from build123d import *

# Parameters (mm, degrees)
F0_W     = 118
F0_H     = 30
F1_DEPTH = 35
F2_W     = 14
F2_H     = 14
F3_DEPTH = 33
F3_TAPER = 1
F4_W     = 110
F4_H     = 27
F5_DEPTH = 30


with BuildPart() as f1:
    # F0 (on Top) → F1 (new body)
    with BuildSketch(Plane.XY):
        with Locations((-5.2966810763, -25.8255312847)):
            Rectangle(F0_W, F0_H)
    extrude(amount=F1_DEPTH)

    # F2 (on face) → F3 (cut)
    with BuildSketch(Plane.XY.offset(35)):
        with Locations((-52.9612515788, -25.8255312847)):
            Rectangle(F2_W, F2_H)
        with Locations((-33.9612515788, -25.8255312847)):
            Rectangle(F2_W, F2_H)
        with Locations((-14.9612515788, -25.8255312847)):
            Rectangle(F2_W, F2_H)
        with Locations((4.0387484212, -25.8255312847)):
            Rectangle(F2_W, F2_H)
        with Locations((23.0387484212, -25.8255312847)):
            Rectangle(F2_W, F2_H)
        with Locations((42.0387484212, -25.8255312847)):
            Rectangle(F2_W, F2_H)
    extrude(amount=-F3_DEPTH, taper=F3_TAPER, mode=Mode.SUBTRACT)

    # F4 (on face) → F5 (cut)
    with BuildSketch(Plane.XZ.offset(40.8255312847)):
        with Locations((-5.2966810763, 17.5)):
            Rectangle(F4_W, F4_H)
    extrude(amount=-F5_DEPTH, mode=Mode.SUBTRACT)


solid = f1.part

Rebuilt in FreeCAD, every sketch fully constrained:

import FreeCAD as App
import Part
import Sketcher
from FreeCAD import Vector
Q = App.Units.Quantity

doc = App.newDocument("Part")
body = doc.addObject("PartDesign::Body", "Body")

sketch1 = body.newObject("Sketcher::SketchObject", "Sketch")
sketch1.AttachmentSupport = (doc.getObject("XY_Plane"), [""])
sketch1.MapMode = "FlatFace"
sketch1.addGeometry([
    Part.LineSegment(Vector(-64.296681, -10.825531, 0), Vector(-64.296681, -40.825531, 0)),
    Part.LineSegment(Vector(-64.296681, -40.825531, 0), Vector(53.703319, -40.825531, 0)),
    Part.LineSegment(Vector(53.703319, -40.825531, 0), Vector(53.703319, -10.825531, 0)),
    Part.LineSegment(Vector(53.703319, -10.825531, 0), Vector(-64.296681, -10.825531, 0)),
], False)
sketch1.addConstraint([
    Sketcher.Constraint("Coincident", 0, 2, 1, 1),
    Sketcher.Constraint("Coincident", 1, 2, 2, 1),
    Sketcher.Constraint("Coincident", 2, 2, 3, 1),
    Sketcher.Constraint("Coincident", 3, 2, 0, 1),
    Sketcher.Constraint("Vertical", 0),
    Sketcher.Constraint("Horizontal", 1),
    Sketcher.Constraint("Vertical", 2),
    Sketcher.Constraint("Horizontal", 3),
    Sketcher.Constraint("DistanceX", 1, 1, 1, 2, Q("118 mm")),
    Sketcher.Constraint("DistanceY", 0, 2, 0, 1, Q("30 mm")),
    Sketcher.Constraint("DistanceX", 0, 2, -1, 1, Q("64.296681 mm")),
    Sketcher.Constraint("DistanceY", 0, 2, -1, 1, Q("40.825531 mm")),
])
pad1 = body.newObject("PartDesign::Pad", "Pad")
pad1.Profile = sketch1
pad1.Length = 35

sketch2 = body.newObject("Sketcher::SketchObject", "Sketch001")
sketch2.AttachmentSupport = (doc.getObject("XY_Plane"), [""])
sketch2.MapMode = "FlatFace"
sketch2.AttachmentOffset = App.Placement(Vector(0, 0, 35), App.Rotation())
sketch2.addGeometry([
    Part.LineSegment(Vector(-59.961252, -18.825531, 0), Vector(-59.961252, -32.825531, 0)),
    Part.LineSegment(Vector(-59.961252, -32.825531, 0), Vector(-45.961252, -32.825531, 0)),
    Part.LineSegment(Vector(-45.961252, -32.825531, 0), Vector(-45.961252, -18.825531, 0)),
    Part.LineSegment(Vector(-45.961252, -18.825531, 0), Vector(-59.961252, -18.825531, 0)),
    Part.LineSegment(Vector(-40.961252, -18.825531, 0), Vector(-40.961252, -32.825531, 0)),
    Part.LineSegment(Vector(-40.961252, -32.825531, 0), Vector(-26.961252, -32.825531, 0)),
    Part.LineSegment(Vector(-26.961252, -32.825531, 0), Vector(-26.961252, -18.825531, 0)),
    Part.LineSegment(Vector(-26.961252, -18.825531, 0), Vector(-40.961252, -18.825531, 0)),
    Part.LineSegment(Vector(-21.961252, -18.825531, 0), Vector(-21.961252, -32.825531, 0)),
    Part.LineSegment(Vector(-21.961252, -32.825531, 0), Vector(-7.961252, -32.825531, 0)),
    Part.LineSegment(Vector(-7.961252, -32.825531, 0), Vector(-7.961252, -18.825531, 0)),
    Part.LineSegment(Vector(-7.961252, -18.825531, 0), Vector(-21.961252, -18.825531, 0)),
    Part.LineSegment(Vector(-2.961252, -18.825531, 0), Vector(-2.961252, -32.825531, 0)),
    Part.LineSegment(Vector(-2.961252, -32.825531, 0), Vector(11.038748, -32.825531, 0)),
    Part.LineSegment(Vector(11.038748, -32.825531, 0), Vector(11.038748, -18.825531, 0)),
    Part.LineSegment(Vector(11.038748, -18.825531, 0), Vector(-2.961252, -18.825531, 0)),
    Part.LineSegment(Vector(16.038748, -18.825531, 0), Vector(16.038748, -32.825531, 0)),
    Part.LineSegment(Vector(16.038748, -32.825531, 0), Vector(30.038748, -32.825531, 0)),
    Part.LineSegment(Vector(30.038748, -32.825531, 0), Vector(30.038748, -18.825531, 0)),
    Part.LineSegment(Vector(30.038748, -18.825531, 0), Vector(16.038748, -18.825531, 0)),
    Part.LineSegment(Vector(35.038748, -18.825531, 0), Vector(35.038748, -32.825531, 0)),
    Part.LineSegment(Vector(35.038748, -32.825531, 0), Vector(49.038748, -32.825531, 0)),
    Part.LineSegment(Vector(49.038748, -32.825531, 0), Vector(49.038748, -18.825531, 0)),
    Part.LineSegment(Vector(49.038748, -18.825531, 0), Vector(35.038748, -18.825531, 0)),
], False)
sketch2.addConstraint([
    Sketcher.Constraint("Coincident", 0, 2, 1, 1),
    Sketcher.Constraint("Coincident", 1, 2, 2, 1),
    Sketcher.Constraint("Coincident", 2, 2, 3, 1),
    Sketcher.Constraint("Coincident", 3, 2, 0, 1),
    Sketcher.Constraint("Coincident", 4, 2, 5, 1),
    Sketcher.Constraint("Coincident", 5, 2, 6, 1),
    Sketcher.Constraint("Coincident", 6, 2, 7, 1),
    Sketcher.Constraint("Coincident", 7, 2, 4, 1),
    Sketcher.Constraint("Coincident", 8, 2, 9, 1),
    Sketcher.Constraint("Coincident", 9, 2, 10, 1),
    Sketcher.Constraint("Coincident", 10, 2, 11, 1),
    Sketcher.Constraint("Coincident", 11, 2, 8, 1),
    Sketcher.Constraint("Coincident", 12, 2, 13, 1),
    Sketcher.Constraint("Coincident", 13, 2, 14, 1),
    Sketcher.Constraint("Coincident", 14, 2, 15, 1),
    Sketcher.Constraint("Coincident", 15, 2, 12, 1),
    Sketcher.Constraint("Coincident", 16, 2, 17, 1),
    Sketcher.Constraint("Coincident", 17, 2, 18, 1),
    Sketcher.Constraint("Coincident", 18, 2, 19, 1),
    Sketcher.Constraint("Coincident", 19, 2, 16, 1),
    Sketcher.Constraint("Coincident", 20, 2, 21, 1),
    Sketcher.Constraint("Coincident", 21, 2, 22, 1),
    Sketcher.Constraint("Coincident", 22, 2, 23, 1),
    Sketcher.Constraint("Coincident", 23, 2, 20, 1),
    Sketcher.Constraint("Vertical", 0),
    Sketcher.Constraint("Horizontal", 1),
    Sketcher.Constraint("Vertical", 2),
    Sketcher.Constraint("Horizontal", 3),
    Sketcher.Constraint("Vertical", 4),
    Sketcher.Constraint("Horizontal", 5),
    Sketcher.Constraint("Vertical", 6),
    Sketcher.Constraint("Horizontal", 7),
    Sketcher.Constraint("Vertical", 8),
    Sketcher.Constraint("Horizontal", 9),
    Sketcher.Constraint("Vertical", 10),
    Sketcher.Constraint("Horizontal", 11),
    Sketcher.Constraint("Vertical", 12),
    Sketcher.Constraint("Horizontal", 13),
    Sketcher.Constraint("Vertical", 14),
    Sketcher.Constraint("Horizontal", 15),
    Sketcher.Constraint("Vertical", 16),
    Sketcher.Constraint("Horizontal", 17),
    Sketcher.Constraint("Vertical", 18),
    Sketcher.Constraint("Horizontal", 19),
    Sketcher.Constraint("Vertical", 20),
    Sketcher.Constraint("Horizontal", 21),
    Sketcher.Constraint("Vertical", 22),
    Sketcher.Constraint("Horizontal", 23),
    Sketcher.Constraint("Horizontal", 1, 2, 4, 2),
    Sketcher.Constraint("Horizontal", 3, 2, 6, 2),
    Sketcher.Constraint("Horizontal", 5, 2, 8, 2),
    Sketcher.Constraint("Horizontal", 7, 2, 10, 2),
    Sketcher.Constraint("Horizontal", 9, 2, 12, 2),
    Sketcher.Constraint("Horizontal", 11, 2, 14, 2),
    Sketcher.Constraint("Horizontal", 13, 2, 16, 2),
    Sketcher.Constraint("Horizontal", 15, 2, 18, 2),
    Sketcher.Constraint("Horizontal", 17, 2, 20, 2),
    Sketcher.Constraint("Horizontal", 19, 2, 22, 2),
    Sketcher.Constraint("Equal", 3, 5),
    Sketcher.Constraint("Equal", 7, 9),
    Sketcher.Constraint("Equal", 11, 13),
    Sketcher.Constraint("Equal", 15, 17),
    Sketcher.Constraint("Equal", 19, 21),
    Sketcher.Constraint("Equal", 23, 0),
    Sketcher.Constraint("DistanceX", 1, 1, 1, 2, Q("14 mm")),
    Sketcher.Constraint("DistanceX", 1, 2, 4, 2, Q("5 mm")),
    Sketcher.Constraint("DistanceX", 5, 2, 8, 2, Q("5 mm")),
    Sketcher.Constraint("DistanceX", 9, 2, 12, 2, Q("5 mm")),
    Sketcher.Constraint("DistanceX", 13, 2, 16, 2, Q("5 mm")),
    Sketcher.Constraint("DistanceX", 17, 2, 20, 2, Q("5 mm")),
    Sketcher.Constraint("DistanceX", 0, 2, -1, 1, Q("59.961252 mm")),
    Sketcher.Constraint("DistanceY", 0, 2, -1, 1, Q("32.825531 mm")),
])
pocket1 = body.newObject("PartDesign::Pocket", "Pocket")
pocket1.Profile = sketch2
pocket1.Length = 33
pocket1.TaperAngle = -1

sketch3 = body.newObject("Sketcher::SketchObject", "Sketch002")
sketch3.AttachmentSupport = (doc.getObject("XZ_Plane"), [""])
sketch3.MapMode = "FlatFace"
sketch3.AttachmentOffset = App.Placement(Vector(0, 0, 40.825531), App.Rotation())
sketch3.addGeometry([
    Part.LineSegment(Vector(-60.296681, 31, 0), Vector(-60.296681, 4, 0)),
    Part.LineSegment(Vector(-60.296681, 4, 0), Vector(49.703319, 4, 0)),
    Part.LineSegment(Vector(49.703319, 4, 0), Vector(49.703319, 31, 0)),
    Part.LineSegment(Vector(49.703319, 31, 0), Vector(-60.296681, 31, 0)),
], False)
sketch3.addConstraint([
    Sketcher.Constraint("Coincident", 0, 2, 1, 1),
    Sketcher.Constraint("Coincident", 1, 2, 2, 1),
    Sketcher.Constraint("Coincident", 2, 2, 3, 1),
    Sketcher.Constraint("Coincident", 3, 2, 0, 1),
    Sketcher.Constraint("Vertical", 0),
    Sketcher.Constraint("Horizontal", 1),
    Sketcher.Constraint("Vertical", 2),
    Sketcher.Constraint("Horizontal", 3),
    Sketcher.Constraint("DistanceX", 1, 1, 1, 2, Q("110 mm")),
    Sketcher.Constraint("DistanceY", 0, 2, 0, 1, Q("27 mm")),
    Sketcher.Constraint("DistanceY", -1, 1, 0, 2, Q("4 mm")),
    Sketcher.Constraint("DistanceX", 0, 2, -1, 1, Q("60.296681 mm")),
])
pocket2 = body.newObject("PartDesign::Pocket", "Pocket001")
pocket2.Profile = sketch3
pocket2.Length = 30

doc.recompute()
